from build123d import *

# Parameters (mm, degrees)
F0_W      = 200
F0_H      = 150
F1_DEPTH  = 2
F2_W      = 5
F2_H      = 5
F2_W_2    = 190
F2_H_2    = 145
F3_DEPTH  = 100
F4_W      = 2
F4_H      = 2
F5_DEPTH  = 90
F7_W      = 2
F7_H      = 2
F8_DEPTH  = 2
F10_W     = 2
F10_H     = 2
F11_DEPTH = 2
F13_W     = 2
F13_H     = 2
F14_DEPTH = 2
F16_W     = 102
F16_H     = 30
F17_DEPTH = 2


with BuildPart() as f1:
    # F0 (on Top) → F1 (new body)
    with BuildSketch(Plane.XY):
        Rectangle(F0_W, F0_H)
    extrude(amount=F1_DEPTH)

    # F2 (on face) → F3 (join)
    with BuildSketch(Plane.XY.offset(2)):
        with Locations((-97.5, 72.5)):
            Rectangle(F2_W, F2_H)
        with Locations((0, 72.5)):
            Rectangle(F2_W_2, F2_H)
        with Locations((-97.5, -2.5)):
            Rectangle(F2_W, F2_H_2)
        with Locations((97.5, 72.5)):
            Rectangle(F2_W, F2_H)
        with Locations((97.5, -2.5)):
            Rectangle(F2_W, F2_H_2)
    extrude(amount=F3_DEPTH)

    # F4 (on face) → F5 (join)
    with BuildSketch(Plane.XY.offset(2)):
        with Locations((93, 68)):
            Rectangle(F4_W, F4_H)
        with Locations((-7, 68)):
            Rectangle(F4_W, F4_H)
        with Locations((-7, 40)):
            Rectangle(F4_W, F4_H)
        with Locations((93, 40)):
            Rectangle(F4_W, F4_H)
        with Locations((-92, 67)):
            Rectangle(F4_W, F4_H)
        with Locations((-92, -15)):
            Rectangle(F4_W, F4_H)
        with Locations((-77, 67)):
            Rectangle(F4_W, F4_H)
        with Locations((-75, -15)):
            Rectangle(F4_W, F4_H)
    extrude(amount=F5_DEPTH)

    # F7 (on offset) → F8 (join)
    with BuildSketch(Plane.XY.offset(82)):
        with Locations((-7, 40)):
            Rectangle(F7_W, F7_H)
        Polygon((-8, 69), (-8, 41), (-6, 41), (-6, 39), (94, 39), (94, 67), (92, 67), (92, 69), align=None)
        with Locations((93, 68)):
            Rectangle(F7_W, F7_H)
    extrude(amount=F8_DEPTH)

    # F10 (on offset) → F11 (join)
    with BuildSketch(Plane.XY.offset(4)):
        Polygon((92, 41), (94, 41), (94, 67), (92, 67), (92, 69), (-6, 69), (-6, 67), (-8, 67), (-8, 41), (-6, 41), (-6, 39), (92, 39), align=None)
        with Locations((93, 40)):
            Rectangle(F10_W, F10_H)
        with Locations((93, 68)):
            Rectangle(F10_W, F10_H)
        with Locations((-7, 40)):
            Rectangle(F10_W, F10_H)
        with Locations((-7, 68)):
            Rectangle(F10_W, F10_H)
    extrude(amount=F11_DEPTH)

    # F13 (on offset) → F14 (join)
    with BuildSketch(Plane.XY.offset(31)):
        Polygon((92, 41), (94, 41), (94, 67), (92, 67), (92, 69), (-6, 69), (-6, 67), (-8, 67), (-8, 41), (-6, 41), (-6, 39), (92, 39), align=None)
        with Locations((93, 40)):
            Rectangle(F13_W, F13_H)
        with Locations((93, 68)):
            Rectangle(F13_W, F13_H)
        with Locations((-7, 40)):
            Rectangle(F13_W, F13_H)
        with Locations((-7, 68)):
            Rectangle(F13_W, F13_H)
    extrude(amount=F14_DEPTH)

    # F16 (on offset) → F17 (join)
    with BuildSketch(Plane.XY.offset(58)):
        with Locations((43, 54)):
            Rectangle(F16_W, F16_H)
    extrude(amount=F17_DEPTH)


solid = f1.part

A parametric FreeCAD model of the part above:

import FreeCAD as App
import Part
import Sketcher
from FreeCAD import Vector
Q = App.Units.Quantity

doc = App.newDocument("Part")
body = doc.addObject("PartDesign::Body", "Body")

# Sketch on XY plane
sketch1 = body.newObject("Sketcher::SketchObject", "Sketch")
sketch1.AttachmentSupport = (doc.getObject("XY_Plane"), [""])
sketch1.MapMode = "FlatFace"
sketch1.addGeometry(Part.LineSegment(Vector(-100, 75, 0), Vector(-100, -75, 0)), False)
sketch1.addGeometry(Part.LineSegment(Vector(-100, -75, 0), Vector(100, -75, 0)), False)
sketch1.addGeometry(Part.LineSegment(Vector(100, -75, 0), Vector(100, 75, 0)), False)
sketch1.addGeometry(Part.LineSegment(Vector(100, 75, 0), Vector(-100, 75, 0)), False)
sketch1.addConstraint(Sketcher.Constraint("Coincident", 0, 2, 1, 1))
sketch1.addConstraint(Sketcher.Constraint("Coincident", 1, 2, 2, 1))
sketch1.addConstraint(Sketcher.Constraint("Coincident", 2, 2, 3, 1))
sketch1.addConstraint(Sketcher.Constraint("Coincident", 3, 2, 0, 1))
sketch1.addConstraint(Sketcher.Constraint("Vertical", 0))
sketch1.addConstraint(Sketcher.Constraint("Horizontal", 1))
sketch1.addConstraint(Sketcher.Constraint("Vertical", 2))
sketch1.addConstraint(Sketcher.Constraint("Horizontal", 3))
sketch1.addConstraint(Sketcher.Constraint("Symmetric", 0, 2, 2, 2, -1, 1))
sketch1.addConstraint(Sketcher.Constraint("DistanceX", 1, 1, 1, 2, Q("200 mm")))
sketch1.addConstraint(Sketcher.Constraint("DistanceY", 0, 2, 0, 1, Q("150 mm")))
pad1 = body.newObject("PartDesign::Pad", "Pad")
pad1.Profile = sketch1
pad1.Length = 2

# Sketch on XY plane
sketch2 = body.newObject("Sketcher::SketchObject", "Sketch001")
sketch2.AttachmentSupport = (doc.getObject("XY_Plane"), [""])
sketch2.MapMode = "FlatFace"
sketch2.AttachmentOffset = App.Placement(Vector(0, 0, 2), App.Rotation())
sketch2.addGeometry(Part.LineSegment(Vector(-100, 75, 0), Vector(-100, -75, 0)), False)
sketch2.addGeometry(Part.LineSegment(Vector(-100, -75, 0), Vector(-95, -75, 0)), False)
sketch2.addGeometry(Part.LineSegment(Vector(-95, -75, 0), Vector(-95, 70, 0)), False)
sketch2.addGeometry(Part.LineSegment(Vector(-95, 70, 0), Vector(95, 70, 0)), False)
sketch2.addGeometry(Part.LineSegment(Vector(95, 70, 0), Vector(95, -75, 0)), False)
sketch2.addGeometry(Part.LineSegment(Vector(95, -75, 0), Vector(100, -75, 0)), False)
sketch2.addGeometry(Part.LineSegment(Vector(100, -75, 0), Vector(100, 75, 0)), False)
sketch2.addGeometry(Part.LineSegment(Vector(100, 75, 0), Vector(-100, 75, 0)), False)
sketch2.addConstraint(Sketcher.Constraint("Coincident", 0, 2, 1, 1))
sketch2.addConstraint(Sketcher.Constraint("Coincident", 1, 2, 2, 1))
sketch2.addConstraint(Sketcher.Constraint("Coincident", 2, 2, 3, 1))
sketch2.addConstraint(Sketcher.Constraint("Coincident", 3, 2, 4, 1))
sketch2.addConstraint(Sketcher.Constraint("Coincident", 4, 2, 5, 1))
sketch2.addConstraint(Sketcher.Constraint("Coincident", 5, 2, 6, 1))
sketch2.addConstraint(Sketcher.Constraint("Coincident", 6, 2, 7, 1))
sketch2.addConstraint(Sketcher.Constraint("Coincident", 7, 2, 0, 1))
sketch2.addConstraint(Sketcher.Constraint("Vertical", 0))
sketch2.addConstraint(Sketcher.Constraint("Horizontal", 1))
sketch2.addConstraint(Sketcher.Constraint("Vertical", 2))
sketch2.addConstraint(Sketcher.Constraint("Horizontal", 3))
sketch2.addConstraint(Sketcher.Constraint("Vertical", 4))
sketch2.addConstraint(Sketcher.Constraint("Horizontal", 5))
sketch2.addConstraint(Sketcher.Constraint("Vertical", 6))
sketch2.addConstraint(Sketcher.Constraint("Horizontal", 7))
sketch2.addConstraint(Sketcher.Constraint("Symmetric", 0, 2, 6, 2, -1, 1))
sketch2.addConstraint(Sketcher.Constraint("Symmetric", 1, 2, 4, 2, -2))
sketch2.addConstraint(Sketcher.Constraint("DistanceX", 1, 1, 1, 2, Q("5 mm")))
sketch2.addConstraint(Sketcher.Constraint("DistanceX", 3, 1, 3, 2, Q("190 mm")))
sketch2.addConstraint(Sketcher.Constraint("DistanceY", 0, 2, 0, 1, Q("150 mm")))
sketch2.addConstraint(Sketcher.Constraint("DistanceY", 2, 1, 2, 2, Q("145 mm")))
pad2 = body.newObject("PartDesign::Pad", "Pad001")
pad2.Profile = sketch2
pad2.Length = 100

# Sketch on XY plane
sketch3 = body.newObject("Sketcher::SketchObject", "Sketch002")
sketch3.AttachmentSupport = (doc.getObject("XY_Plane"), [""])
sketch3.MapMode = "FlatFace"
sketch3.AttachmentOffset = App.Placement(Vector(0, 0, 2), App.Rotation())
sketch3.addGeometry(Part.LineSegment(Vector(92, 69, 0), Vector(92, 67, 0)), False)
sketch3.addGeometry(Part.LineSegment(Vector(92, 67, 0), Vector(94, 67, 0)), False)
sketch3.addGeometry(Part.LineSegment(Vector(94, 67, 0), Vector(94, 69, 0)), False)
sketch3.addGeometry(Part.LineSegment(Vector(94, 69, 0), Vector(92, 69, 0)), False)
sketch3.addGeometry(Part.LineSegment(Vector(-8, 69, 0), Vector(-8, 67, 0)), False)
sketch3.addGeometry(Part.LineSegment(Vector(-8, 67, 0), Vector(-6, 67, 0)), False)
sketch3.addGeometry(Part.LineSegment(Vector(-6, 67, 0), Vector(-6, 69, 0)), False)
sketch3.addGeometry(Part.LineSegment(Vector(-6, 69, 0), Vector(-8, 69, 0)), False)
sketch3.addGeometry(Part.LineSegment(Vector(-8, 41, 0), Vector(-8, 39, 0)), False)
sketch3.addGeometry(Part.LineSegment(Vector(-8, 39, 0), Vector(-6, 39, 0)), False)
sketch3.addGeometry(Part.LineSegment(Vector(-6, 39, 0), Vector(-6, 41, 0)), False)
sketch3.addGeometry(Part.LineSegment(Vector(-6, 41, 0), Vector(-8, 41, 0)), False)
sketch3.addGeometry(Part.LineSegment(Vector(92, 41, 0), Vector(92, 39, 0)), False)
sketch3.addGeometry(Part.LineSegment(Vector(92, 39, 0), Vector(94, 39, 0)), False)
sketch3.addGeometry(Part.LineSegment(Vector(94, 39, 0), Vector(94, 41, 0)), False)
sketch3.addGeometry(Part.LineSegment(Vector(94, 41, 0), Vector(92, 41, 0)), False)
sketch3.addGeometry(Part.LineSegment(Vector(-93, 68, 0), Vector(-93, 66, 0)), False)
sketch3.addGeometry(Part.LineSegment(Vector(-93, 66, 0), Vector(-91, 66, 0)), False)
sketch3.addGeometry(Part.LineSegment(Vector(-91, 66, 0), Vector(-91, 68, 0)), False)
sketch3.addGeometry(Part.LineSegment(Vector(-91, 68, 0), Vector(-93, 68, 0)), False)
sketch3.addGeometry(Part.LineSegment(Vector(-93, -14, 0), Vector(-93, -16, 0)), False)
sketch3.addGeometry(Part.LineSegment(Vector(-93, -16, 0), Vector(-91, -16, 0)), False)
sketch3.addGeometry(Part.LineSegment(Vector(-91, -16, 0), Vector(-91, -14, 0)), False)
sketch3.addGeometry(Part.LineSegment(Vector(-91, -14, 0), Vector(-93, -14, 0)), False)
sketch3.addGeometry(Part.LineSegment(Vector(-78, 68, 0), Vector(-78, 66, 0)), False)
sketch3.addGeometry(Part.LineSegment(Vector(-78, 66, 0), Vector(-76, 66, 0)), False)
sketch3.addGeometry(Part.LineSegment(Vector(-76, 66, 0), Vector(-76, 68, 0)), False)
sketch3.addGeometry(Part.LineSegment(Vector(-76, 68, 0), Vector(-78, 68, 0)), False)
sketch3.addGeometry(Part.LineSegment(Vector(-76, -14, 0), Vector(-76, -16, 0)), False)
sketch3.addGeometry(Part.LineSegment(Vector(-76, -16, 0), Vector(-74, -16, 0)), False)
sketch3.addGeometry(Part.LineSegment(Vector(-74, -16, 0), Vector(-74, -14, 0)), False)
sketch3.addGeometry(Part.LineSegment(Vector(-74, -14, 0), Vector(-76, -14, 0)), False)
sketch3.addConstraint(Sketcher.Constraint("Coincident", 0, 2, 1, 1))
sketch3.addConstraint(Sketcher.Constraint("Coincident", 1, 2, 2, 1))
sketch3.addConstraint(Sketcher.Constraint("Coincident", 2, 2, 3, 1))
sketch3.addConstraint(Sketcher.Constraint("Coincident", 3, 2, 0, 1))
sketch3.addConstraint(Sketcher.Constraint("Coincident", 4, 2, 5, 1))
sketch3.addConstraint(Sketcher.Constraint("Coincident", 5, 2, 6, 1))
sketch3.addConstraint(Sketcher.Constraint("Coincident", 6, 2, 7, 1))
sketch3.addConstraint(Sketcher.Constraint("Coincident", 7, 2, 4, 1))
sketch3.addConstraint(Sketcher.Constraint("Coincident", 8, 2, 9, 1))
sketch3.addConstraint(Sketcher.Constraint("Coincident", 9, 2, 10, 1))
sketch3.addConstraint(Sketcher.Constraint("Coincident", 10, 2, 11, 1))
sketch3.addConstraint(Sketcher.Constraint("Coincident", 11, 2, 8, 1))
sketch3.addConstraint(Sketcher.Constraint("Coincident", 12, 2, 13, 1))
sketch3.addConstraint(Sketcher.Constraint("Coincident", 13, 2, 14, 1))
sketch3.addConstraint(Sketcher.Constraint("Coincident", 14, 2, 15, 1))
sketch3.addConstraint(Sketcher.Constraint("Coincident", 15, 2, 12, 1))
sketch3.addConstraint(Sketcher.Constraint("Coincident", 16, 2, 17, 1))
sketch3.addConstraint(Sketcher.Constraint("Coincident", 17, 2, 18, 1))
sketch3.addConstraint(Sketcher.Constraint("Coincident", 18, 2, 19, 1))
sketch3.addConstraint(Sketcher.Constraint("Coincident", 19, 2, 16, 1))
sketch3.addConstraint(Sketcher.Constraint("Coincident", 20, 2, 21, 1))
sketch3.addConstraint(Sketcher.Constraint("Coincident", 21, 2, 22, 1))
sketch3.addConstraint(Sketcher.Constraint("Coincident", 22, 2, 23, 1))
sketch3.addConstraint(Sketcher.Constraint("Coincident", 23, 2, 20, 1))
sketch3.addConstraint(Sketcher.Constraint("Coincident", 24, 2, 25, 1))
sketch3.addConstraint(Sketcher.Constraint("Coincident", 25, 2, 26, 1))
sketch3.addConstraint(Sketcher.Constraint("Coincident", 26, 2, 27, 1))
sketch3.addConstraint(Sketcher.Constraint("Coincident", 27, 2, 24, 1))
sketch3.addConstraint(Sketcher.Constraint("Coincident", 28, 2, 29, 1))
sketch3.addConstraint(Sketcher.Constraint("Coincident", 29, 2, 30, 1))
sketch3.addConstraint(Sketcher.Constraint("Coincident", 30, 2, 31, 1))
sketch3.addConstraint(Sketcher.Constraint("Coincident", 31, 2, 28, 1))
sketch3.addConstraint(Sketcher.Constraint("Vertical", 0))
sketch3.addConstraint(Sketcher.Constraint("Horizontal", 1))
sketch3.addConstraint(Sketcher.Constraint("Vertical", 2))
sketch3.addConstraint(Sketcher.Constraint("Horizontal", 3))
sketch3.addConstraint(Sketcher.Constraint("Vertical", 4))
sketch3.addConstraint(Sketcher.Constraint("Horizontal", 5))
sketch3.addConstraint(Sketcher.Constraint("Vertical", 6))
sketch3.addConstraint(Sketcher.Constraint("Horizontal", 7))
sketch3.addConstraint(Sketcher.Constraint("Vertical", 8))
sketch3.addConstraint(Sketcher.Constraint("Horizontal", 9))
sketch3.addConstraint(Sketcher.Constraint("Vertical", 10))
sketch3.addConstraint(Sketcher.Constraint("Horizontal", 11))
sketch3.addConstraint(Sketcher.Constraint("Vertical", 12))
sketch3.addConstraint(Sketcher.Constraint("Horizontal", 13))
sketch3.addConstraint(Sketcher.Constraint("Vertical", 14))
sketch3.addConstraint(Sketcher.Constraint("Horizontal", 15))
sketch3.addConstraint(Sketcher.Constraint("Vertical", 16))
sketch3.addConstraint(Sketcher.Constraint("Horizontal", 17))
sketch3.addConstraint(Sketcher.Constraint("Vertical", 18))
sketch3.addConstraint(Sketcher.Constraint("Horizontal", 19))
sketch3.addConstraint(Sketcher.Constraint("Vertical", 20))
sketch3.addConstraint(Sketcher.Constraint("Horizontal", 21))
sketch3.addConstraint(Sketcher.Constraint("Vertical", 22))
sketch3.addConstraint(Sketcher.Constraint("Horizontal", 23))
sketch3.addConstraint(Sketcher.Constraint("Vertical", 24))
sketch3.addConstraint(Sketcher.Constraint("Horizontal", 25))
sketch3.addConstraint(Sketcher.Constraint("Vertical", 26))
sketch3.addConstraint(Sketcher.Constraint("Horizontal", 27))
sketch3.addConstraint(Sketcher.Constraint("Vertical", 28))
sketch3.addConstraint(Sketcher.Constraint("Horizontal", 29))
sketch3.addConstraint(Sketcher.Constraint("Vertical", 30))
sketch3.addConstraint(Sketcher.Constraint("Horizontal", 31))
sketch3.addConstraint(Sketcher.Constraint("Horizontal", 1, 2, 4, 2))
sketch3.addConstraint(Sketcher.Constraint("Horizontal", 3, 2, 6, 2))
sketch3.addConstraint(Sketcher.Constraint("Horizontal", 9, 2, 12, 2))
sketch3.addConstraint(Sketcher.Constraint("Horizontal", 11, 2, 14, 2))
sketch3.addConstraint(Sketcher.Constraint("Horizontal", 17, 2, 24, 2))
sketch3.addConstraint(Sketcher.Constraint("Horizontal", 19, 2, 26, 2))
sketch3.addConstraint(Sketcher.Constraint("Horizontal", 21, 2, 28, 2))
sketch3.addConstraint(Sketcher.Constraint("Horizontal", 23, 2, 30, 2))
sketch3.addConstraint(Sketcher.Constraint("Vertical", 7, 2, 8, 2))
sketch3.addConstraint(Sketcher.Constraint("Vertical", 6, 2, 9, 2))
sketch3.addConstraint(Sketcher.Constraint("Vertical", 3, 2, 12, 2))
sketch3.addConstraint(Sketcher.Constraint("Vertical", 2, 2, 13, 2))
sketch3.addConstraint(Sketcher.Constraint("Vertical", 19, 2, 20, 2))
sketch3.addConstraint(Sketcher.Constraint("Vertical", 18, 2, 21, 2))
sketch3.addConstraint(Sketcher.Constraint("Vertical", 26, 2, 28, 2))
sketch3.addConstraint(Sketcher.Constraint("Equal", 3, 5))
sketch3.addConstraint(Sketcher.Constraint("Equal", 15, 17))
sketch3.addConstraint(Sketcher.Constraint("Equal", 23, 25))
sketch3.addConstraint(Sketcher.Constraint("Equal", 27, 29))
sketch3.addConstraint(Sketcher.Constraint("Equal", 31, 0))
sketch3.addConstraint(Sketcher.Constraint("Equal", 6, 8))
sketch3.addConstraint(Sketcher.Constraint("Equal", 14, 16))
sketch3.addConstraint(Sketcher.Constraint("Equal", 18, 20))
sketch3.addConstraint(Sketcher.Constraint("DistanceX", 1, 1, 1, 2, Q("2 mm")))
sketch3.addConstraint(Sketcher.Constraint("DistanceX", -1, 1, 0, 2, Q("92 mm")))
sketch3.addConstraint(Sketcher.Constraint("DistanceY", -1, 1, 0, 2, Q("67 mm")))
sketch3.addConstraint(Sketcher.Constraint("DistanceX", 4, 2, -1, 1, Q("8 mm")))
sketch3.addConstraint(Sketcher.Constraint("DistanceY", -1, 1, 8, 2, Q("39 mm")))
sketch3.addConstraint(Sketcher.Constraint("DistanceX", 16, 2, -1, 1, Q("93 mm")))
sketch3.addConstraint(Sketcher.Constraint("DistanceY", -1, 1, 16, 2, Q("66 mm")))
sketch3.addConstraint(Sketcher.Constraint("DistanceY", 20, 2, -1, 1, Q("16 mm")))
sketch3.addConstraint(Sketcher.Constraint("DistanceX", 24, 2, -1, 1, Q("78 mm")))
pad3 = body.newObject("PartDesign::Pad", "Pad002")
pad3.Profile = sketch3
pad3.Length = 90

# Sketch on XY plane
sketch4 = body.newObject("Sketcher::SketchObject", "Sketch003")
sketch4.AttachmentSupport = (doc.getObject("XY_Plane"), [""])
sketch4.MapMode = "FlatFace"
sketch4.AttachmentOffset = App.Placement(Vector(0, 0, 82), App.Rotation())
sketch4.addGeometry(Part.LineSegment(Vector(-8, 39, 0), Vector(94, 39, 0)), False)
sketch4.addGeometry(Part.LineSegment(Vector(94, 39, 0), Vector(94, 69, 0)), False)
sketch4.addGeometry(Part.LineSegment(Vector(94, 69, 0), Vector(-8, 69, 0)), False)
sketch4.addGeometry(Part.LineSegment(Vector(-8, 69, 0), Vector(-8, 39, 0)), False)
sketch4.addConstraint(Sketcher.Constraint("Coincident", 0, 2, 1, 1))
sketch4.addConstraint(Sketcher.Constraint("Coincident", 1, 2, 2, 1))
sketch4.addConstraint(Sketcher.Constraint("Coincident", 2, 2, 3, 1))
sketch4.addConstraint(Sketcher.Constraint("Coincident", 3, 2, 0, 1))
sketch4.addConstraint(Sketcher.Constraint("Horizontal", 0))
sketch4.addConstraint(Sketcher.Constraint("Vertical", 1))
sketch4.addConstraint(Sketcher.Constraint("Horizontal", 2))
sketch4.addConstraint(Sketcher.Constraint("Vertical", 3))
sketch4.addConstraint(Sketcher.Constraint("DistanceX", 0, 1, 0, 2, Q("102 mm")))
sketch4.addConstraint(Sketcher.Constraint("DistanceY", 1, 1, 1, 2, Q("30 mm")))
sketch4.addConstraint(Sketcher.Constraint("DistanceX", -1, 1, 0, 2, Q("94 mm")))
sketch4.addConstraint(Sketcher.Constraint("DistanceY", -1, 1, 0, 2, Q("39 mm")))
pad4 = body.newObject("PartDesign::Pad", "Pad003")
pad4.Profile = sketch4
pad4.Length = 2

# Sketch on XY plane
sketch5 = body.newObject("Sketcher::SketchObject", "Sketch004")
sketch5.AttachmentSupport = (doc.getObject("XY_Plane"), [""])
sketch5.MapMode = "FlatFace"
sketch5.AttachmentOffset = App.Placement(Vector(0, 0, 4), App.Rotation())
sketch5.addGeometry(Part.LineSegment(Vector(-8, 39, 0), Vector(94, 39, 0)), False)
sketch5.addGeometry(Part.LineSegment(Vector(94, 39, 0), Vector(94, 69, 0)), False)
sketch5.addGeometry(Part.LineSegment(Vector(94, 69, 0), Vector(-8, 69, 0)), False)
sketch5.addGeometry(Part.LineSegment(Vector(-8, 69, 0), Vector(-8, 39, 0)), False)
sketch5.addConstraint(Sketcher.Constraint("Coincident", 0, 2, 1, 1))
sketch5.addConstraint(Sketcher.Constraint("Coincident", 1, 2, 2, 1))
sketch5.addConstraint(Sketcher.Constraint("Coincident", 2, 2, 3, 1))
sketch5.addConstraint(Sketcher.Constraint("Coincident", 3, 2, 0, 1))
sketch5.addConstraint(Sketcher.Constraint("Horizontal", 0))
sketch5.addConstraint(Sketcher.Constraint("Vertical", 1))
sketch5.addConstraint(Sketcher.Constraint("Horizontal", 2))
sketch5.addConstraint(Sketcher.Constraint("Vertical", 3))
sketch5.addConstraint(Sketcher.Constraint("DistanceX", 0, 1, 0, 2, Q("102 mm")))
sketch5.addConstraint(Sketcher.Constraint("DistanceY", 1, 1, 1, 2, Q("30 mm")))
sketch5.addConstraint(Sketcher.Constraint("DistanceX", -1, 1, 0, 2, Q("94 mm")))
sketch5.addConstraint(Sketcher.Constraint("DistanceY", -1, 1, 0, 2, Q("39 mm")))
pad5 = body.newObject("PartDesign::Pad", "Pad004")
pad5.Profile = sketch5
pad5.Length = 2

# Sketch on XY plane
sketch6 = body.newObject("Sketcher::SketchObject", "Sketch005")
sketch6.AttachmentSupport = (doc.getObject("XY_Plane"), [""])
sketch6.MapMode = "FlatFace"
sketch6.AttachmentOffset = App.Placement(Vector(0, 0, 31), App.Rotation())
sketch6.addGeometry(Part.LineSegment(Vector(-8, 39, 0), Vector(94, 39, 0)), False)
sketch6.addGeometry(Part.LineSegment(Vector(94, 39, 0), Vector(94, 69, 0)), False)
sketch6.addGeometry(Part.LineSegment(Vector(94, 69, 0), Vector(-8, 69, 0)), False)
sketch6.addGeometry(Part.LineSegment(Vector(-8, 69, 0), Vector(-8, 39, 0)), False)
sketch6.addConstraint(Sketcher.Constraint("Coincident", 0, 2, 1, 1))
sketch6.addConstraint(Sketcher.Constraint("Coincident", 1, 2, 2, 1))
sketch6.addConstraint(Sketcher.Constraint("Coincident", 2, 2, 3, 1))
sketch6.addConstraint(Sketcher.Constraint("Coincident", 3, 2, 0, 1))
sketch6.addConstraint(Sketcher.Constraint("Horizontal", 0))
sketch6.addConstraint(Sketcher.Constraint("Vertical", 1))
sketch6.addConstraint(Sketcher.Constraint("Horizontal", 2))
sketch6.addConstraint(Sketcher.Constraint("Vertical", 3))
sketch6.addConstraint(Sketcher.Constraint("DistanceX", 0, 1, 0, 2, Q("102 mm")))
sketch6.addConstraint(Sketcher.Constraint("DistanceY", 1, 1, 1, 2, Q("30 mm")))
sketch6.addConstraint(Sketcher.Constraint("DistanceX", -1, 1, 0, 2, Q("94 mm")))
sketch6.addConstraint(Sketcher.Constraint("DistanceY", -1, 1, 0, 2, Q("39 mm")))
pad6 = body.newObject("PartDesign::Pad", "Pad005")
pad6.Profile = sketch6
pad6.Length = 2

# Sketch on XY plane
sketch7 = body.newObject("Sketcher::SketchObject", "Sketch006")
sketch7.AttachmentSupport = (doc.getObject("XY_Plane"), [""])
sketch7.MapMode = "FlatFace"
sketch7.AttachmentOffset = App.Placement(Vector(0, 0, 58), App.Rotation())
sketch7.addGeometry(Part.LineSegment(Vector(-8, 69, 0), Vector(-8, 39, 0)), False)
sketch7.addGeometry(Part.LineSegment(Vector(-8, 39, 0), Vector(94, 39, 0)), False)
sketch7.addGeometry(Part.LineSegment(Vector(94, 39, 0), Vector(94, 69, 0)), False)
sketch7.addGeometry(Part.LineSegment(Vector(94, 69, 0), Vector(-8, 69, 0)), False)
sketch7.addConstraint(Sketcher.Constraint("Coincident", 0, 2, 1, 1))
sketch7.addConstraint(Sketcher.Constraint("Coincident", 1, 2, 2, 1))
sketch7.addConstraint(Sketcher.Constraint("Coincident", 2, 2, 3, 1))
sketch7.addConstraint(Sketcher.Constraint("Coincident", 3, 2, 0, 1))
sketch7.addConstraint(Sketcher.Constraint("Vertical", 0))
sketch7.addConstraint(Sketcher.Constraint("Horizontal", 1))
sketch7.addConstraint(Sketcher.Constraint("Vertical", 2))
sketch7.addConstraint(Sketcher.Constraint("Horizontal", 3))
sketch7.addConstraint(Sketcher.Constraint("DistanceX", 1, 1, 1, 2, Q("102 mm")))
sketch7.addConstraint(Sketcher.Constraint("DistanceY", 0, 2, 0, 1, Q("30 mm")))
sketch7.addConstraint(Sketcher.Constraint("DistanceX", 0, 2, -1, 1, Q("8 mm")))
sketch7.addConstraint(Sketcher.Constraint("DistanceY", -1, 1, 0, 2, Q("39 mm")))
pad7 = body.newObject("PartDesign::Pad", "Pad006")
pad7.Profile = sketch7
pad7.Length = 2

doc.recompute()
